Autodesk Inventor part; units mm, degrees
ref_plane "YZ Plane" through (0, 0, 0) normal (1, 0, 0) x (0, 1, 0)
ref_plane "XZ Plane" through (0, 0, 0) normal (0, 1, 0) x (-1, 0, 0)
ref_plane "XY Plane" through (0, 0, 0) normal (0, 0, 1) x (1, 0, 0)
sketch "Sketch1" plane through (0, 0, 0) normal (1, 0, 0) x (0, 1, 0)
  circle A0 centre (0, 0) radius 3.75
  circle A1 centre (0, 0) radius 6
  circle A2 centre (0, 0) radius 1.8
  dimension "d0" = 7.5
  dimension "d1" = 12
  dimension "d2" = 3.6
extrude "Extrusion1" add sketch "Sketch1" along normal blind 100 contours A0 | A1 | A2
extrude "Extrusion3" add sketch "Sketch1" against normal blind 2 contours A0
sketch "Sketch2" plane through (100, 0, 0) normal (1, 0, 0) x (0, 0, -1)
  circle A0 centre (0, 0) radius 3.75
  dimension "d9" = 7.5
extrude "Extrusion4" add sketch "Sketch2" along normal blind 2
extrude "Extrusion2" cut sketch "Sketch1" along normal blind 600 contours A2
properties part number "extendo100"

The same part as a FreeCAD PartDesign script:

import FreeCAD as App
import Part
import Sketcher
from FreeCAD import Vector

doc = App.newDocument("Part")
body = doc.addObject("PartDesign::Body", "Body")

# Sketch on YZ plane
sketch1 = body.newObject("Sketcher::SketchObject", "Sketch")
sketch1.AttachmentSupport = (doc.getObject("YZ_Plane"), [""])
sketch1.MapMode = "FlatFace"
sketch1.addGeometry(Part.Circle(Vector(0, 0, 0), Vector(0, 0, 1), 6), False)
sketch1.addConstraint(Sketcher.Constraint("Coincident", 0, 3, -1, 1))
sketch1.addConstraint(Sketcher.Constraint("Diameter", 0, 12.0))
pad1 = body.newObject("PartDesign::Pad", "Pad")
pad1.Profile = sketch1
pad1.Length = 100

# Sketch on YZ plane
sketch2 = body.newObject("Sketcher::SketchObject", "Sketch001")
sketch2.AttachmentSupport = (doc.getObject("YZ_Plane"), [""])
sketch2.MapMode = "FlatFace"
sketch2.addGeometry(Part.Circle(Vector(0, 0, 0), Vector(0, 0, 1), 3.8), False)
sketch2.addGeometry(Part.Circle(Vector(0, 0, 0), Vector(0, 0, 1), 1.8), False)
sketch2.addConstraint(Sketcher.Constraint("Coincident", 0, 3, -1, 1))
sketch2.addConstraint(Sketcher.Constraint("Coincident", 1, 3, -1, 1))
sketch2.addConstraint(Sketcher.Constraint("Diameter", 0, 7.5))
sketch2.addConstraint(Sketcher.Constraint("Diameter", 1, 3.6))
pad2 = body.newObject("PartDesign::Pad", "Pad001")
pad2.Profile = sketch2
pad2.Length = 2
pad2.Reversed = True

# Sketch on YZ plane
sketch3 = body.newObject("Sketcher::SketchObject", "Sketch002")
sketch3.AttachmentSupport = (doc.getObject("YZ_Plane"), [""])
sketch3.MapMode = "FlatFace"
sketch3.AttachmentOffset = App.Placement(Vector(0, 0, 100), App.Rotation())
sketch3.addGeometry(Part.Circle(Vector(0, 0, 0), Vector(0, 0, 1), 3.8), False)
sketch3.addConstraint(Sketcher.Constraint("Coincident", 0, 3, -1, 1))
sketch3.addConstraint(Sketcher.Constraint("Diameter", 0, 7.5))
pad3 = body.newObject("PartDesign::Pad", "Pad002")
pad3.Profile = sketch3
pad3.Length = 2

# Sketch on YZ plane
sketch4 = body.newObject("Sketcher::SketchObject", "Sketch003")
sketch4.AttachmentSupport = (doc.getObject("YZ_Plane"), [""])
sketch4.MapMode = "FlatFace"
sketch4.addGeometry(Part.Circle(Vector(0, 0, 0), Vector(0, 0, 1), 1.8), False)
sketch4.addConstraint(Sketcher.Constraint("Coincident", 0, 3, -1, 1))
sketch4.addConstraint(Sketcher.Constraint("Diameter", 0, 3.6))
pocket1 = body.newObject("PartDesign::Pocket", "Pocket")
pocket1.Profile = sketch4
pocket1.Length = 600
pocket1.Reversed = True

doc.recompute()
